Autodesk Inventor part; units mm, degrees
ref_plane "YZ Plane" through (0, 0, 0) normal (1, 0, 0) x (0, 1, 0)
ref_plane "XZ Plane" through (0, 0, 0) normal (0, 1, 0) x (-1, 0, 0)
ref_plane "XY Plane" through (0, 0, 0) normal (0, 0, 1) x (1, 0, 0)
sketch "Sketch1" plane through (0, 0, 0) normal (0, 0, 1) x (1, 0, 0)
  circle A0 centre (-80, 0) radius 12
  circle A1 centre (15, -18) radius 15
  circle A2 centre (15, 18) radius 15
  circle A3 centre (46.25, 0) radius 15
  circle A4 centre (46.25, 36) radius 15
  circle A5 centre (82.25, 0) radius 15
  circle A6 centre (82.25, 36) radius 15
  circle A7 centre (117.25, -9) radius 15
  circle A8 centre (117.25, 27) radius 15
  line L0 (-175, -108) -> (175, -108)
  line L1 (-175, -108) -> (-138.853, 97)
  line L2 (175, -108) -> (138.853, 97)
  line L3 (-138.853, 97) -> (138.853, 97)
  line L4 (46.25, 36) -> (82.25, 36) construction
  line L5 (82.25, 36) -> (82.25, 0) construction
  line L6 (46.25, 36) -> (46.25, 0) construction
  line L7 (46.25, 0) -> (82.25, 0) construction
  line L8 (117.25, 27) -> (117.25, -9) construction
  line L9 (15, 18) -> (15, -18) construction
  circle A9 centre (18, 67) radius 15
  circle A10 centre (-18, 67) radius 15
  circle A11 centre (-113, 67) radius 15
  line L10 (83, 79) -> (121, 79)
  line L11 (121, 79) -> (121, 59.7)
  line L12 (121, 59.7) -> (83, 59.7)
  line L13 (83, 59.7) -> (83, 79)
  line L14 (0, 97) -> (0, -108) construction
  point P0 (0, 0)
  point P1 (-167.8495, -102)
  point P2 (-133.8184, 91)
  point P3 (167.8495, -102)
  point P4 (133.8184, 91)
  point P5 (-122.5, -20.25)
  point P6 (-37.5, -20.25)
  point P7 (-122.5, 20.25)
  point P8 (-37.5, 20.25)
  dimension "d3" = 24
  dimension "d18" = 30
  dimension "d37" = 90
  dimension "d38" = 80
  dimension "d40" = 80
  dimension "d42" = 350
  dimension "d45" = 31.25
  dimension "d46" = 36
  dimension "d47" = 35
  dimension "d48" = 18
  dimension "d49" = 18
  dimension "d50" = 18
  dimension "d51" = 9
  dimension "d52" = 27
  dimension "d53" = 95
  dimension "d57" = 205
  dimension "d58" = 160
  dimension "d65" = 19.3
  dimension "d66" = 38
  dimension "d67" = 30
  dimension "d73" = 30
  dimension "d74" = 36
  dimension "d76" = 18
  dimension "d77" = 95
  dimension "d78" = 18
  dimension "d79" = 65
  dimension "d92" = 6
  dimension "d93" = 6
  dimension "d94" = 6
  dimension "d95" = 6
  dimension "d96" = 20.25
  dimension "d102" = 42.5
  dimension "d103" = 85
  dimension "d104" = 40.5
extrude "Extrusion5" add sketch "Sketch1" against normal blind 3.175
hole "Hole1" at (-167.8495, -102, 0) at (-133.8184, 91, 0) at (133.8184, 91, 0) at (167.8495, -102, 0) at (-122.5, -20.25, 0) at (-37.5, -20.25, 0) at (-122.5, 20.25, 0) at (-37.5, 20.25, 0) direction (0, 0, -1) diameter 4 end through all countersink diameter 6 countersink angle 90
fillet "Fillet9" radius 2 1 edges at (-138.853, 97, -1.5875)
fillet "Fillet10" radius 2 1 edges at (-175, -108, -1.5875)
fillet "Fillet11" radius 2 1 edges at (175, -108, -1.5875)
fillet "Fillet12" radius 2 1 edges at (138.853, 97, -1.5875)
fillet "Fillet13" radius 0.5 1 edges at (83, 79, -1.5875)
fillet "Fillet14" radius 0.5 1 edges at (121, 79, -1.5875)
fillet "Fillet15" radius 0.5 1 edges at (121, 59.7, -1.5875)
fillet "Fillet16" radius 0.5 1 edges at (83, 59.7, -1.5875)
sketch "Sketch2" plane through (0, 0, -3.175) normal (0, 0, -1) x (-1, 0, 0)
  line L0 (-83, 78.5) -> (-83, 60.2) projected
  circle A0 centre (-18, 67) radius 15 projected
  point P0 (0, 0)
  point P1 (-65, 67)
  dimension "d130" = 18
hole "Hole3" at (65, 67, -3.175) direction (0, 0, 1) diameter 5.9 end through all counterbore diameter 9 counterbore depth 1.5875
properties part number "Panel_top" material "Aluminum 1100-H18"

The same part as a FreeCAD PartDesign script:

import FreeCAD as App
import Part
import Sketcher
Q = App.Units.Quantity


def edges_at(feature, points):
    """Names of the edges that pass closest to the given points."""
    edges = feature.Shape.Edges
    near = lambda p: min(range(len(edges)), key=lambda i: edges[i].distToShape(Part.Vertex(*p))[0])
    return sorted({f"Edge{near(p) + 1}" for p in points})

doc = App.newDocument("Part")
body = doc.addObject("PartDesign::Body", "Body")

# Sketch on XY plane
sketch1 = body.newObject("Sketcher::SketchObject", "Sketch")
sketch1.AttachmentSupport = (doc.getObject("XY_Plane"), [""])
sketch1.MapMode = "FlatFace"
sketch1.addGeometry(Part.LineSegment(App.Vector(-139, 97, 0), App.Vector(-175, -108, 0)), False)
sketch1.addGeometry(Part.LineSegment(App.Vector(-175, -108, 0), App.Vector(175, -108, 0)), False)
sketch1.addGeometry(Part.LineSegment(App.Vector(175, -108, 0), App.Vector(139, 97, 0)), False)
sketch1.addGeometry(Part.LineSegment(App.Vector(139, 97, 0), App.Vector(-139, 97, 0)), False)
sketch1.addGeometry(Part.Circle(App.Vector(15, -18, 0), App.Vector(0, 0, 1), 15), False)
sketch1.addGeometry(Part.Circle(App.Vector(117, -9, 0), App.Vector(0, 0, 1), 15), False)
sketch1.addGeometry(Part.Circle(App.Vector(-80, 0, 0), App.Vector(0, 0, 1), 12), False)
sketch1.addGeometry(Part.Circle(App.Vector(-113, 67, 0), App.Vector(0, 0, 1), 15), False)
sketch1.addGeometry(Part.Circle(App.Vector(-18, 67, 0), App.Vector(0, 0, 1), 15), False)
sketch1.addGeometry(Part.Circle(App.Vector(15, 18, 0), App.Vector(0, 0, 1), 15), False)
sketch1.addGeometry(Part.Circle(App.Vector(46, 0, 0), App.Vector(0, 0, 1), 15), False)
sketch1.addGeometry(Part.Circle(App.Vector(82, 0, 0), App.Vector(0, 0, 1), 15), False)
sketch1.addGeometry(Part.Circle(App.Vector(46, 36, 0), App.Vector(0, 0, 1), 15), False)
sketch1.addGeometry(Part.Circle(App.Vector(82, 36, 0), App.Vector(0, 0, 1), 15), False)
sketch1.addGeometry(Part.Circle(App.Vector(117, 27, 0), App.Vector(0, 0, 1), 15), False)
sketch1.addGeometry(Part.Circle(App.Vector(18, 67, 0), App.Vector(0, 0, 1), 15), False)
sketch1.addGeometry(Part.LineSegment(App.Vector(83, 60, 0), App.Vector(83, 79, 0)), False)
sketch1.addGeometry(Part.LineSegment(App.Vector(83, 79, 0), App.Vector(121, 79, 0)), False)
sketch1.addGeometry(Part.LineSegment(App.Vector(121, 79, 0), App.Vector(121, 60, 0)), False)
sketch1.addGeometry(Part.LineSegment(App.Vector(121, 60, 0), App.Vector(83, 60, 0)), False)
sketch1.addConstraint(Sketcher.Constraint("Coincident", 0, 2, 1, 1))
sketch1.addConstraint(Sketcher.Constraint("Coincident", 1, 2, 2, 1))
sketch1.addConstraint(Sketcher.Constraint("Coincident", 2, 2, 3, 1))
sketch1.addConstraint(Sketcher.Constraint("Coincident", 3, 2, 0, 1))
sketch1.addConstraint(Sketcher.Constraint("Coincident", 16, 2, 17, 1))
sketch1.addConstraint(Sketcher.Constraint("Coincident", 17, 2, 18, 1))
sketch1.addConstraint(Sketcher.Constraint("Coincident", 18, 2, 19, 1))
sketch1.addConstraint(Sketcher.Constraint("Coincident", 19, 2, 16, 1))
sketch1.addConstraint(Sketcher.Constraint("Horizontal", 1))
sketch1.addConstraint(Sketcher.Constraint("Horizontal", 3))
sketch1.addConstraint(Sketcher.Constraint("Vertical", 16))
sketch1.addConstraint(Sketcher.Constraint("Horizontal", 17))
sketch1.addConstraint(Sketcher.Constraint("Vertical", 18))
sketch1.addConstraint(Sketcher.Constraint("Horizontal", 19))
sketch1.addConstraint(Sketcher.Constraint("Equal", 4, 5))
sketch1.addConstraint(Sketcher.Constraint("Equal", 5, 7))
sketch1.addConstraint(Sketcher.Constraint("Equal", 7, 8))
sketch1.addConstraint(Sketcher.Constraint("Equal", 8, 9))
sketch1.addConstraint(Sketcher.Constraint("Equal", 9, 10))
sketch1.addConstraint(Sketcher.Constraint("Equal", 10, 11))
sketch1.addConstraint(Sketcher.Constraint("Equal", 11, 12))
sketch1.addConstraint(Sketcher.Constraint("Equal", 12, 13))
sketch1.addConstraint(Sketcher.Constraint("Equal", 13, 14))
sketch1.addConstraint(Sketcher.Constraint("Equal", 14, 15))
sketch1.addConstraint(Sketcher.Constraint("Symmetric", 8, 3, 15, 3, -2))
sketch1.addConstraint(Sketcher.Constraint("Symmetric", 4, 3, 9, 3, -1))
sketch1.addConstraint(Sketcher.Constraint("PointOnObject", 6, 3, -1))
sketch1.addConstraint(Sketcher.Constraint("PointOnObject", 10, 3, -1))
sketch1.addConstraint(Sketcher.Constraint("PointOnObject", 11, 3, -1))
sketch1.addConstraint(Sketcher.Constraint("Horizontal", 7, 3, 8, 3))
sketch1.addConstraint(Sketcher.Constraint("Horizontal", 12, 3, 13, 3))
sketch1.addConstraint(Sketcher.Constraint("Vertical", 10, 3, 12, 3))
sketch1.addConstraint(Sketcher.Constraint("Vertical", 11, 3, 13, 3))
sketch1.addConstraint(Sketcher.Constraint("Vertical", 5, 3, 14, 3))
sketch1.addConstraint(Sketcher.Constraint("Equal", 0, 2))
sketch1.addConstraint(Sketcher.Constraint("Diameter", 4, 30.0))
sketch1.addConstraint(Sketcher.Constraint("Diameter", 6, 24.0))
sketch1.addConstraint(Sketcher.Constraint("DistanceX", 1, 1, 1, 2, 350.0))
sketch1.addConstraint(Sketcher.Constraint("DistanceX", 17, 1, 17, 2, 38.0))
sketch1.addConstraint(Sketcher.Constraint("DistanceY", 16, 1, 16, 2, 19.3))
sketch1.addConstraint(Sketcher.Constraint("DistanceY", 4, 3, -1, 1, 18.0))
sketch1.addConstraint(Sketcher.Constraint("DistanceY", 5, 3, -1, 1, 9.0))
sketch1.addConstraint(Sketcher.Constraint("DistanceX", 6, 3, -1, 1, 80.0))
sketch1.addConstraint(Sketcher.Constraint("DistanceX", 8, 3, -1, 1, 18.0))
sketch1.addConstraint(Sketcher.Constraint("DistanceY", -1, 1, 12, 3, 36.0))
sketch1.addConstraint(Sketcher.Constraint("DistanceY", -1, 1, 14, 3, 27.0))
sketch1.addConstraint(Sketcher.Constraint("DistanceX", 6, 3, 4, 3, 95.0))
sketch1.addConstraint(Sketcher.Constraint("DistanceY", 4, 3, 7, 3, 85.0))
sketch1.addConstraint(Sketcher.Constraint("DistanceX", 7, 3, 8, 3, 95.0))
sketch1.addConstraint(Sketcher.Constraint("DistanceX", 10, 3, 11, 3, 36.0))
sketch1.addConstraint(Sketcher.Constraint("DistanceX", 11, 3, 5, 3, 35.0))
sketch1.addConstraint(Sketcher.Constraint("DistanceX", 0, 2, 6, 3, 95.0))
sketch1.addConstraint(Sketcher.Constraint("DistanceY", 0, 2, 4, 3, 90.0))
sketch1.addConstraint(Sketcher.Constraint("DistanceY", 7, 3, 3, 2, 30.0))
sketch1.addConstraint(Sketcher.Constraint("DistanceY", 16, 2, 2, 2, 18.0))
sketch1.addConstraint(Sketcher.Constraint("DistanceX", 15, 3, 16, 2, 65.0))
sketch1.addConstraint(Sketcher.Constraint("Angle", 0, Q("-100 deg")))
sketch1.addConstraint(Sketcher.Constraint("DistanceX", 4, 3, 10, 3, 31.25))
pad1 = body.newObject("PartDesign::Pad", "Pad")
pad1.Profile = sketch1
pad1.Length = 3.175
pad1.Reversed = True

# Sketch on XY plane
sketch2 = body.newObject("Sketcher::SketchObject", "Sketch001")
sketch2.AttachmentSupport = (doc.getObject("XY_Plane"), [""])
sketch2.MapMode = "FlatFace"
sketch2.addGeometry(Part.Circle(App.Vector(-167.8, -102, 0), App.Vector(0, 0, 1), 2), False)
sketch2.addGeometry(Part.Circle(App.Vector(-133.8, 91, 0), App.Vector(0, 0, 1), 2), False)
sketch2.addGeometry(Part.Circle(App.Vector(133.8, 91, 0), App.Vector(0, 0, 1), 2), False)
sketch2.addGeometry(Part.Circle(App.Vector(167.8, -102, 0), App.Vector(0, 0, 1), 2), False)
sketch2.addGeometry(Part.Circle(App.Vector(-122.5, -20.2, 0), App.Vector(0, 0, 1), 2), False)
sketch2.addGeometry(Part.Circle(App.Vector(-37.5, -20.2, 0), App.Vector(0, 0, 1), 2), False)
sketch2.addGeometry(Part.Circle(App.Vector(-122.5, 20.2, 0), App.Vector(0, 0, 1), 2), False)
sketch2.addGeometry(Part.Circle(App.Vector(-37.5, 20.2, 0), App.Vector(0, 0, 1), 2), False)
sketch2.addConstraint(Sketcher.Constraint("Equal", 0, 1))
sketch2.addConstraint(Sketcher.Constraint("Equal", 1, 2))
sketch2.addConstraint(Sketcher.Constraint("Equal", 2, 3))
sketch2.addConstraint(Sketcher.Constraint("Equal", 3, 4))
sketch2.addConstraint(Sketcher.Constraint("Equal", 4, 5))
sketch2.addConstraint(Sketcher.Constraint("Equal", 5, 6))
sketch2.addConstraint(Sketcher.Constraint("Equal", 6, 7))
sketch2.addConstraint(Sketcher.Constraint("Symmetric", 1, 3, 2, 3, -2))
sketch2.addConstraint(Sketcher.Constraint("Symmetric", 0, 3, 3, 3, -2))
sketch2.addConstraint(Sketcher.Constraint("Symmetric", 4, 3, 6, 3, -1))
sketch2.addConstraint(Sketcher.Constraint("Symmetric", 5, 3, 7, 3, -1))
sketch2.addConstraint(Sketcher.Constraint("Horizontal", 4, 3, 5, 3))
sketch2.addConstraint(Sketcher.Constraint("Diameter", 0, 4.0))
sketch2.addConstraint(Sketcher.Constraint("DistanceY", 0, 3, -1, 1, 102.0))
sketch2.addConstraint(Sketcher.Constraint("DistanceY", -1, 1, 1, 3, 91.0))
sketch2.addConstraint(Sketcher.Constraint("DistanceX", 4, 3, 5, 3, 85.0))
sketch2.addConstraint(Sketcher.Constraint("DistanceX", 4, 3, -1, 1, 122.5))
sketch2.addConstraint(Sketcher.Constraint("DistanceY", 4, 3, 6, 3, 40.5))
sketch2.addConstraint(Sketcher.Constraint("DistanceX", 0, 3, 1, 3, 34.031))
sketch2.addConstraint(Sketcher.Constraint("DistanceX", 0, 3, 2, 3, 301.668))
doc.recompute()
hole = body.newObject("PartDesign::Hole", "Hole")
hole.Profile = sketch2
hole.ThreadType = "None"
hole.Diameter = 4
hole.DepthType = "ThroughAll"
hole.HoleCutType = "Countersink"
hole.HoleCutDiameter = 6
hole.HoleCutCountersinkAngle = 90
doc.recompute()

fillet = body.newObject("PartDesign::Fillet", "Fillet")
fillet.Base = (hole, edges_at(hole, [(-138.853, 97, -1.587)]))
fillet.Radius = 2
doc.recompute()

fillet2 = body.newObject("PartDesign::Fillet", "Fillet001")
fillet2.Base = (fillet, edges_at(fillet, [(-175, -108, -1.587)]))
fillet2.Radius = 2
doc.recompute()

fillet3 = body.newObject("PartDesign::Fillet", "Fillet002")
fillet3.Base = (fillet2, edges_at(fillet2, [(175, -108, -1.587)]))
fillet3.Radius = 2
doc.recompute()

fillet4 = body.newObject("PartDesign::Fillet", "Fillet003")
fillet4.Base = (fillet3, edges_at(fillet3, [(138.853, 97, -1.587)]))
fillet4.Radius = 2
doc.recompute()

fillet5 = body.newObject("PartDesign::Fillet", "Fillet004")
fillet5.Base = (fillet4, edges_at(fillet4, [(83, 79, -1.587)]))
fillet5.Radius = 0.5
doc.recompute()

fillet6 = body.newObject("PartDesign::Fillet", "Fillet005")
fillet6.Base = (fillet5, edges_at(fillet5, [(121, 79, -1.587)]))
fillet6.Radius = 0.5
doc.recompute()

fillet7 = body.newObject("PartDesign::Fillet", "Fillet006")
fillet7.Base = (fillet6, edges_at(fillet6, [(121, 59.7, -1.587)]))
fillet7.Radius = 0.5
doc.recompute()

fillet8 = body.newObject("PartDesign::Fillet", "Fillet007")
fillet8.Base = (fillet7, edges_at(fillet7, [(83, 59.7, -1.587)]))
fillet8.Radius = 0.5

# Sketch on XY plane
sketch3 = body.newObject("Sketcher::SketchObject", "Sketch002")
sketch3.AttachmentSupport = (doc.getObject("XY_Plane"), [""])
sketch3.MapMode = "FlatFace"
sketch3.AttachmentOffset = App.Placement(App.Vector(0, 0, -3.175), App.Rotation())
sketch3.addGeometry(Part.Circle(App.Vector(65, 67, 0), App.Vector(0, 0, 1), 3), False)
sketch3.addConstraint(Sketcher.Constraint("Diameter", 0, 5.9))
sketch3.addConstraint(Sketcher.Constraint("DistanceX", -1, 1, 0, 3, 65.0))
sketch3.addConstraint(Sketcher.Constraint("DistanceY", -1, 1, 0, 3, 67.0))
doc.recompute()
hole2 = body.newObject("PartDesign::Hole", "Hole001")
hole2.Profile = sketch3
hole2.ThreadType = "None"
hole2.Diameter = 5.9
hole2.DepthType = "ThroughAll"
hole2.HoleCutType = "Counterbore"
hole2.HoleCutDiameter = 9
hole2.HoleCutDepth = 1.5875
hole2.Reversed = True

doc.recompute()
